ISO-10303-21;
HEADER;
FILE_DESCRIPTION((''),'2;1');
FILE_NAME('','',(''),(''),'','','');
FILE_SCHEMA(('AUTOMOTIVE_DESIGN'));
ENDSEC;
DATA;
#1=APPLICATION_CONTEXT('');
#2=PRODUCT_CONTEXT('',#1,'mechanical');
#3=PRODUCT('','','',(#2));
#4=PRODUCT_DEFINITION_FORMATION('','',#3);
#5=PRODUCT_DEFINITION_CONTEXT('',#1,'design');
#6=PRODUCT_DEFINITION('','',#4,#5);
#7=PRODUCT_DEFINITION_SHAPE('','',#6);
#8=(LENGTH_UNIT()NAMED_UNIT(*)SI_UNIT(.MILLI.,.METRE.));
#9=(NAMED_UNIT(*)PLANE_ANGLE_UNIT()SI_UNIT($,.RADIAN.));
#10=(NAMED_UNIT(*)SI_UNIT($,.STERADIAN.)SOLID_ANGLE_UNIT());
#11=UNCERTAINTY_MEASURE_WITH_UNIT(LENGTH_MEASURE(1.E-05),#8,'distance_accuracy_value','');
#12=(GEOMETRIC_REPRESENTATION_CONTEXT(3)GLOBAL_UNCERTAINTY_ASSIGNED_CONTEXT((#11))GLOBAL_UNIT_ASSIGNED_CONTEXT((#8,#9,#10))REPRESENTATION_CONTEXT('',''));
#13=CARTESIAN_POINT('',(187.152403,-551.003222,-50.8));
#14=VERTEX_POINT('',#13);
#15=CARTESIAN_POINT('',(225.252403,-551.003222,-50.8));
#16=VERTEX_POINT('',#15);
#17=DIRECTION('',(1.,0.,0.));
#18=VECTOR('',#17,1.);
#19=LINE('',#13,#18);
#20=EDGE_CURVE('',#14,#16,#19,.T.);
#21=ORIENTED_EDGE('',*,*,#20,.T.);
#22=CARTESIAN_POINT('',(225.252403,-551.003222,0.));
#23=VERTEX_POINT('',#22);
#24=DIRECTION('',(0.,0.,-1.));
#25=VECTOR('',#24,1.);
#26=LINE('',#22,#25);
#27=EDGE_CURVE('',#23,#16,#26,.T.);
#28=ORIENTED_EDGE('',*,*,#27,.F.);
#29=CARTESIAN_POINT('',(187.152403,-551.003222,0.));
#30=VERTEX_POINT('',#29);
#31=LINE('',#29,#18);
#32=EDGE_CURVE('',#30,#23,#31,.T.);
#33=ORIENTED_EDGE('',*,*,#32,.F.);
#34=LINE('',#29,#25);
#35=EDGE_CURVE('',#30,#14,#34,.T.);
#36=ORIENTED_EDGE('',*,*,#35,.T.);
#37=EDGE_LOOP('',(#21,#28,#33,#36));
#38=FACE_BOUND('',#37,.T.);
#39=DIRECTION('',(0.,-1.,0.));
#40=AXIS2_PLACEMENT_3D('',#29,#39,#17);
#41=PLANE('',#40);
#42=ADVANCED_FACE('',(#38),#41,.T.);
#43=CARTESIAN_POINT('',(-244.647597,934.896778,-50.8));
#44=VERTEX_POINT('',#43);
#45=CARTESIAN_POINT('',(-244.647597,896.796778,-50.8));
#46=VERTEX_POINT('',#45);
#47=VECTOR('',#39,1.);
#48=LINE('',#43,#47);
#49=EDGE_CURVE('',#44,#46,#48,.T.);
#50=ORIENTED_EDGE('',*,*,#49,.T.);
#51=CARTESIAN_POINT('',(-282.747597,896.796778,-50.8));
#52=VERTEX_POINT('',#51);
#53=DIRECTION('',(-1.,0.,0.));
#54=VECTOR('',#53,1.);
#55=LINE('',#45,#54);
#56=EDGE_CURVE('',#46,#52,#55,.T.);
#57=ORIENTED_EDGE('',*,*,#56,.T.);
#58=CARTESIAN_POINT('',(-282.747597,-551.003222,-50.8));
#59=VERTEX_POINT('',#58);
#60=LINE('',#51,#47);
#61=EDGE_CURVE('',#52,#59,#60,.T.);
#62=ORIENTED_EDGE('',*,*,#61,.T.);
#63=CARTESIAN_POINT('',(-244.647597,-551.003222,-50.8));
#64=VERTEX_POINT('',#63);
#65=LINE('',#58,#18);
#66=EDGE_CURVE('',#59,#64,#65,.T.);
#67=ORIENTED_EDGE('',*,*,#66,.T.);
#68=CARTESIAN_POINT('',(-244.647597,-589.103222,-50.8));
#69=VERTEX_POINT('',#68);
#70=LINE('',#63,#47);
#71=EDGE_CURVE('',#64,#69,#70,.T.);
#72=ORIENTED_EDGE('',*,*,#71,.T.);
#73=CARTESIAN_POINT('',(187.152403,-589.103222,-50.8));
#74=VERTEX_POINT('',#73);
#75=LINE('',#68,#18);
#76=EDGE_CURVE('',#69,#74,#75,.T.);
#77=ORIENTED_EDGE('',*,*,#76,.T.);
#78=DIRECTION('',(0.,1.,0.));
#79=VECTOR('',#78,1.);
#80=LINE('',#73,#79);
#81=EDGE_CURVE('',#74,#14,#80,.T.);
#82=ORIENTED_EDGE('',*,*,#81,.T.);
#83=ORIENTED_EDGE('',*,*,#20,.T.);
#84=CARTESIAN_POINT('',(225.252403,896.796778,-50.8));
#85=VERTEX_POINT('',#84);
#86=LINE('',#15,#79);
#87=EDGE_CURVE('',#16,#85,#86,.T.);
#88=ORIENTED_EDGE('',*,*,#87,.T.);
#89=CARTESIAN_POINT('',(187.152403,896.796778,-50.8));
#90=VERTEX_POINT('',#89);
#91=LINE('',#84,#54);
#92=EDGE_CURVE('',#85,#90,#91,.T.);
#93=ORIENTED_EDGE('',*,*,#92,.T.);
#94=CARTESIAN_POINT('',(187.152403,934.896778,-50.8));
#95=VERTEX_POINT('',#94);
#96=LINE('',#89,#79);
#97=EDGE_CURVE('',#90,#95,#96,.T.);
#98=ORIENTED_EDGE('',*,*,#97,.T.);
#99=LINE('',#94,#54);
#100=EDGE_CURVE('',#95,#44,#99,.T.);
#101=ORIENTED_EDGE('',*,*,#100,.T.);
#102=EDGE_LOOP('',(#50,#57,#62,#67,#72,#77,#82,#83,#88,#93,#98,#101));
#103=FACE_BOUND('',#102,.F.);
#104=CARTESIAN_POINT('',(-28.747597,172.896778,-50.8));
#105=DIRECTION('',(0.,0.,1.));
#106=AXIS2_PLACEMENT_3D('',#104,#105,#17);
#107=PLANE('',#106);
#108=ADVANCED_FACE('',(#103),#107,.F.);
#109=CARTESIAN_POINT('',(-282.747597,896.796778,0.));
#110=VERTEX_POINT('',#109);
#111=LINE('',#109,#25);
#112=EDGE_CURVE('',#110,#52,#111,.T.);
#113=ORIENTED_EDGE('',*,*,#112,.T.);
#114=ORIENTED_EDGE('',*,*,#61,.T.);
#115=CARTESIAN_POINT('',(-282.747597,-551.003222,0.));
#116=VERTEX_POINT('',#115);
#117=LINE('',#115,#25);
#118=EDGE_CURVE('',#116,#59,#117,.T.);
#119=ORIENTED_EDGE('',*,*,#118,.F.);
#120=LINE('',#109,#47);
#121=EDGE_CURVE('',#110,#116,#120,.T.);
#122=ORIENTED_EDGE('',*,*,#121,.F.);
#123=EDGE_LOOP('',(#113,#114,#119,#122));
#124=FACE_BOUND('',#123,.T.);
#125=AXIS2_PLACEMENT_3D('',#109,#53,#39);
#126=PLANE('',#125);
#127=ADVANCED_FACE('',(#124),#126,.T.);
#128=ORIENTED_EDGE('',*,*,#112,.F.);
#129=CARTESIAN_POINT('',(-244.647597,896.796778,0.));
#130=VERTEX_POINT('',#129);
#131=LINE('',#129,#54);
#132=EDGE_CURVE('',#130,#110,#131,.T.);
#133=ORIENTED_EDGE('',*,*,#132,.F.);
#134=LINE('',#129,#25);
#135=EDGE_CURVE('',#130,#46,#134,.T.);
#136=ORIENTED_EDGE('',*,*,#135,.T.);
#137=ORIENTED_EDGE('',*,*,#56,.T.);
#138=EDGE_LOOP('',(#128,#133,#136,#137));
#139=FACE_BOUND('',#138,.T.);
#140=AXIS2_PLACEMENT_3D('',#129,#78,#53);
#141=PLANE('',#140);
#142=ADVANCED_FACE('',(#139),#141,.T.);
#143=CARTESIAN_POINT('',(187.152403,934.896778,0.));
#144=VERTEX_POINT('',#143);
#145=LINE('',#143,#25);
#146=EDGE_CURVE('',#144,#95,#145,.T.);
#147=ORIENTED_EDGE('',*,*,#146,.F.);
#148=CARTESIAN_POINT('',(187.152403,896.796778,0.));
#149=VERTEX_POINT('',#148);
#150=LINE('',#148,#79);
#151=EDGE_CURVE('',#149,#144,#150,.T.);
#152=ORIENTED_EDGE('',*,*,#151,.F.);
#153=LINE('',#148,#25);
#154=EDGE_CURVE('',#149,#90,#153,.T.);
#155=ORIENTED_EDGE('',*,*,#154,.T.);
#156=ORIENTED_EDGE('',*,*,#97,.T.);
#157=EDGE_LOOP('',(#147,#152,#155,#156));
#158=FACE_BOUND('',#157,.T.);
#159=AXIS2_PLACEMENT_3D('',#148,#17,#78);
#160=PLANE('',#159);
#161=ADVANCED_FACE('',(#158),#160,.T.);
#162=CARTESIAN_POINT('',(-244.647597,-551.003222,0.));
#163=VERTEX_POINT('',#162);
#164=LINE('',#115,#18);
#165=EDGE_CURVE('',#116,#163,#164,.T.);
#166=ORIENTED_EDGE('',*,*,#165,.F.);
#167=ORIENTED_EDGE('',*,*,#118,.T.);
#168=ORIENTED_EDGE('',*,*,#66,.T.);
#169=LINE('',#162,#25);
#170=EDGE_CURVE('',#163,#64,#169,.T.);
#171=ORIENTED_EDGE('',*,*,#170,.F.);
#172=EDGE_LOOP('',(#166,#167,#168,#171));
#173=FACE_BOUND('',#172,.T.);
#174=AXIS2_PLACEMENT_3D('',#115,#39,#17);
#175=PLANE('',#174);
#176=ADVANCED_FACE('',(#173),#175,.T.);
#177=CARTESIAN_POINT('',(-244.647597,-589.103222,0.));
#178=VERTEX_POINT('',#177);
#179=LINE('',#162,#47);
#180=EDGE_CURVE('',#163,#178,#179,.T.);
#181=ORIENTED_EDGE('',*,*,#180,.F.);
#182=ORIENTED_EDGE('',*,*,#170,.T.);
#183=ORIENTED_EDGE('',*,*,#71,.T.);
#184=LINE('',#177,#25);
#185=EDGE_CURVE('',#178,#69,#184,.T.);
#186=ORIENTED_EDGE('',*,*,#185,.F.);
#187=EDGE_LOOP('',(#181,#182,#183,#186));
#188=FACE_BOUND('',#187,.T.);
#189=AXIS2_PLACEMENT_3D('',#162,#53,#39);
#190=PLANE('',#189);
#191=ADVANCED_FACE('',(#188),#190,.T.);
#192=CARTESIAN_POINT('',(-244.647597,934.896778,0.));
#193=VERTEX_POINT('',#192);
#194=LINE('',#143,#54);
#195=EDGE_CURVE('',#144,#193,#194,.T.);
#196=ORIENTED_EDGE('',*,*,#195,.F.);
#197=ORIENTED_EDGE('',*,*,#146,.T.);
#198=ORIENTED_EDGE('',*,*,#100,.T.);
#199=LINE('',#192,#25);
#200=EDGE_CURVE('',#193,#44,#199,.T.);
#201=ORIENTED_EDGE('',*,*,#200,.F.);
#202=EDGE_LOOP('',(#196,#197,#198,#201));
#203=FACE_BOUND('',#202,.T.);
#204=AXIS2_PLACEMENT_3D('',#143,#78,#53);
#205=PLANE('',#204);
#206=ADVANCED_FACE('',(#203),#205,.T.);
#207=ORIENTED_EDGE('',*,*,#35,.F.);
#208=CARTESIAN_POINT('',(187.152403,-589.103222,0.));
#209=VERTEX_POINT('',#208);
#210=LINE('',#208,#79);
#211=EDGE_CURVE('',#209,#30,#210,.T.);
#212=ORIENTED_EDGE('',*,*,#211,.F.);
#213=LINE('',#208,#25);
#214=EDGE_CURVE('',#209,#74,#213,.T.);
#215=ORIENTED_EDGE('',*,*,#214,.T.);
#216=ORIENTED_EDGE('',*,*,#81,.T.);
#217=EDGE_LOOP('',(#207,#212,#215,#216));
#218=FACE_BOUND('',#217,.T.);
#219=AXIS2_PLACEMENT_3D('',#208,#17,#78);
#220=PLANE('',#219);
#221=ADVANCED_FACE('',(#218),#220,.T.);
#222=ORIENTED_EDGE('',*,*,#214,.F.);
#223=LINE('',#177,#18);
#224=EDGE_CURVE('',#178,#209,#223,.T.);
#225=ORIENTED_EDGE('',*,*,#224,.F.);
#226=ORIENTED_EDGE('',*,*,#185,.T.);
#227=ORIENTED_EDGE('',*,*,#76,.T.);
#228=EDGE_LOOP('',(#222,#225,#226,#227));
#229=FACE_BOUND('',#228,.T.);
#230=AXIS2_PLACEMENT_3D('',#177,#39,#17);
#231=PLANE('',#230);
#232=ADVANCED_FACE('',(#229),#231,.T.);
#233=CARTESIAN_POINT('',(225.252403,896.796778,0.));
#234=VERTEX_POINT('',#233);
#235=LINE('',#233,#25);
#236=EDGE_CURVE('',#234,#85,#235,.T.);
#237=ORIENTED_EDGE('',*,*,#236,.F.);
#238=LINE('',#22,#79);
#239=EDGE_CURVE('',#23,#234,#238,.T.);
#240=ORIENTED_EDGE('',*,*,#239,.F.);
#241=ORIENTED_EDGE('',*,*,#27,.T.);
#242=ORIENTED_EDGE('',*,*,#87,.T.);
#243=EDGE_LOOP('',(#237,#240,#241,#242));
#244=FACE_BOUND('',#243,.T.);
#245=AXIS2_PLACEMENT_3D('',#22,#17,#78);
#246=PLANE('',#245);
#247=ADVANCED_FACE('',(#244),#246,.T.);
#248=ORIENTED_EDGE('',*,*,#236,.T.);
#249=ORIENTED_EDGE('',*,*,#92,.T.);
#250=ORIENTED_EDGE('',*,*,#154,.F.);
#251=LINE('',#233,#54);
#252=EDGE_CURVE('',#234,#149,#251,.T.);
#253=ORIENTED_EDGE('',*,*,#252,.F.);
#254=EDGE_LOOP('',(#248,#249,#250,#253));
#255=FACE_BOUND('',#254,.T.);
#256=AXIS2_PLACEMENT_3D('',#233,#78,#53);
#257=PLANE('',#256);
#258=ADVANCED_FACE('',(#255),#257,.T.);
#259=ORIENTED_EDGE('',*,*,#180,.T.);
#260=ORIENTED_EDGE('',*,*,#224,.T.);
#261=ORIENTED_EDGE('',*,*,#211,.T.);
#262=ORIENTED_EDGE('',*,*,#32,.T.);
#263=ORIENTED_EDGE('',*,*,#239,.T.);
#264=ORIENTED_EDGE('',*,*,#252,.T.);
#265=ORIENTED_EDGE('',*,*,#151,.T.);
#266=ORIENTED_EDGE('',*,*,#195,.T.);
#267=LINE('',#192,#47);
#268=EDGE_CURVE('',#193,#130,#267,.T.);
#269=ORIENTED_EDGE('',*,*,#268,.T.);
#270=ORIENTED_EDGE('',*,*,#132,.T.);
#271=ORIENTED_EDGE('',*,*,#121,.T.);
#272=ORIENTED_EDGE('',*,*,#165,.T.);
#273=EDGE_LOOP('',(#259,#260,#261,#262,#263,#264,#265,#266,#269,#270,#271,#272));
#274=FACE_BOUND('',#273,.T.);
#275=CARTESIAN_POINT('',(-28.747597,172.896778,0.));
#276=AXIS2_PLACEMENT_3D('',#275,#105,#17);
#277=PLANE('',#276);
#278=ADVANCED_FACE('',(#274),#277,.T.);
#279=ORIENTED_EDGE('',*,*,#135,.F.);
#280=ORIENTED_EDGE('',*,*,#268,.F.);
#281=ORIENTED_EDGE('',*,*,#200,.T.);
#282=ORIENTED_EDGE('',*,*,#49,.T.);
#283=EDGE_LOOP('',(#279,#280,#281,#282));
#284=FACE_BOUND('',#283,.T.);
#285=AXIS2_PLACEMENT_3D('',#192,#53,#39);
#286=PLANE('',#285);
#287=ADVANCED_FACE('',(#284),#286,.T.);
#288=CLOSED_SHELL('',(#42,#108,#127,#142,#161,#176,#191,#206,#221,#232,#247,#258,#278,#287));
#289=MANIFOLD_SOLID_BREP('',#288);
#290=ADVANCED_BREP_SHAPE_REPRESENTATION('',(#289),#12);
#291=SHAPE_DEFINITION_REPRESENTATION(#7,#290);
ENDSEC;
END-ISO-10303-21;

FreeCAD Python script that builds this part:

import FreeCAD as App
import Part
import Sketcher
from FreeCAD import Vector
Q = App.Units.Quantity

doc = App.newDocument("Part")
body = doc.addObject("PartDesign::Body", "Body")

sketch1 = body.newObject("Sketcher::SketchObject", "Sketch")
sketch1.AttachmentSupport = (doc.getObject("XY_Plane"), [""])
sketch1.MapMode = "FlatFace"
sketch1.addGeometry(Part.LineSegment(Vector(-245, -551, 0), Vector(-245, -589, 0)), False)
sketch1.addGeometry(Part.LineSegment(Vector(-245, -589, 0), Vector(187, -589, 0)), False)
sketch1.addGeometry(Part.LineSegment(Vector(187, -589, 0), Vector(187, -551, 0)), False)
sketch1.addGeometry(Part.LineSegment(Vector(187, -551, 0), Vector(225, -551, 0)), False)
sketch1.addGeometry(Part.LineSegment(Vector(225, -551, 0), Vector(225, 897, 0)), False)
sketch1.addGeometry(Part.LineSegment(Vector(225, 897, 0), Vector(187, 897, 0)), False)
sketch1.addGeometry(Part.LineSegment(Vector(187, 897, 0), Vector(187, 935, 0)), False)
sketch1.addGeometry(Part.LineSegment(Vector(187, 935, 0), Vector(-245, 935, 0)), False)
sketch1.addGeometry(Part.LineSegment(Vector(-245, 935, 0), Vector(-245, 897, 0)), False)
sketch1.addGeometry(Part.LineSegment(Vector(-245, 897, 0), Vector(-283, 897, 0)), False)
sketch1.addGeometry(Part.LineSegment(Vector(-283, 897, 0), Vector(-283, -551, 0)), False)
sketch1.addGeometry(Part.LineSegment(Vector(-283, -551, 0), Vector(-245, -551, 0)), False)
sketch1.addConstraint(Sketcher.Constraint("Coincident", 0, 2, 1, 1))
sketch1.addConstraint(Sketcher.Constraint("Coincident", 1, 2, 2, 1))
sketch1.addConstraint(Sketcher.Constraint("Coincident", 2, 2, 3, 1))
sketch1.addConstraint(Sketcher.Constraint("Coincident", 3, 2, 4, 1))
sketch1.addConstraint(Sketcher.Constraint("Coincident", 4, 2, 5, 1))
sketch1.addConstraint(Sketcher.Constraint("Coincident", 5, 2, 6, 1))
sketch1.addConstraint(Sketcher.Constraint("Coincident", 6, 2, 7, 1))
sketch1.addConstraint(Sketcher.Constraint("Coincident", 7, 2, 8, 1))
sketch1.addConstraint(Sketcher.Constraint("Coincident", 8, 2, 9, 1))
sketch1.addConstraint(Sketcher.Constraint("Coincident", 9, 2, 10, 1))
sketch1.addConstraint(Sketcher.Constraint("Coincident", 10, 2, 11, 1))
sketch1.addConstraint(Sketcher.Constraint("Coincident", 11, 2, 0, 1))
sketch1.addConstraint(Sketcher.Constraint("Vertical", 0))
sketch1.addConstraint(Sketcher.Constraint("Horizontal", 1))
sketch1.addConstraint(Sketcher.Constraint("Vertical", 2))
sketch1.addConstraint(Sketcher.Constraint("Horizontal", 3))
sketch1.addConstraint(Sketcher.Constraint("Vertical", 4))
sketch1.addConstraint(Sketcher.Constraint("Horizontal", 5))
sketch1.addConstraint(Sketcher.Constraint("Vertical", 6))
sketch1.addConstraint(Sketcher.Constraint("Horizontal", 7))
sketch1.addConstraint(Sketcher.Constraint("Vertical", 8))
sketch1.addConstraint(Sketcher.Constraint("Horizontal", 9))
sketch1.addConstraint(Sketcher.Constraint("Vertical", 10))
sketch1.addConstraint(Sketcher.Constraint("Horizontal", 11))
sketch1.addConstraint(Sketcher.Constraint("Horizontal", 5, 2, 8, 2))
sketch1.addConstraint(Sketcher.Constraint("Horizontal", 3, 2, 10, 2))
sketch1.addConstraint(Sketcher.Constraint("Vertical", 2, 2, 5, 2))
sketch1.addConstraint(Sketcher.Constraint("Vertical", 0, 2, 7, 2))
sketch1.addConstraint(Sketcher.Constraint("Equal", 5, 9))
sketch1.addConstraint(Sketcher.Constraint("Equal", 11, 0))
sketch1.addConstraint(Sketcher.Constraint("Equal", 2, 6))
sketch1.addConstraint(Sketcher.Constraint("DistanceX", 1, 1, 1, 2, Q("17 in")))
sketch1.addConstraint(Sketcher.Constraint("DistanceY", 4, 1, 4, 2, Q("57 in")))
sketch1.addConstraint(Sketcher.Constraint("DistanceX", 3, 1, 3, 2, Q("1.5 in")))
sketch1.addConstraint(Sketcher.Constraint("DistanceY", 0, 2, -1, 1, Q("589.103222 mm")))
sketch1.addConstraint(Sketcher.Constraint("DistanceX", 0, 2, -1, 1, Q("244.647597 mm")))
pad1 = body.newObject("PartDesign::Pad", "Pad")
pad1.Profile = sketch1
pad1.Length = Q("2 in")
pad1.Reversed = True

doc.recompute()
